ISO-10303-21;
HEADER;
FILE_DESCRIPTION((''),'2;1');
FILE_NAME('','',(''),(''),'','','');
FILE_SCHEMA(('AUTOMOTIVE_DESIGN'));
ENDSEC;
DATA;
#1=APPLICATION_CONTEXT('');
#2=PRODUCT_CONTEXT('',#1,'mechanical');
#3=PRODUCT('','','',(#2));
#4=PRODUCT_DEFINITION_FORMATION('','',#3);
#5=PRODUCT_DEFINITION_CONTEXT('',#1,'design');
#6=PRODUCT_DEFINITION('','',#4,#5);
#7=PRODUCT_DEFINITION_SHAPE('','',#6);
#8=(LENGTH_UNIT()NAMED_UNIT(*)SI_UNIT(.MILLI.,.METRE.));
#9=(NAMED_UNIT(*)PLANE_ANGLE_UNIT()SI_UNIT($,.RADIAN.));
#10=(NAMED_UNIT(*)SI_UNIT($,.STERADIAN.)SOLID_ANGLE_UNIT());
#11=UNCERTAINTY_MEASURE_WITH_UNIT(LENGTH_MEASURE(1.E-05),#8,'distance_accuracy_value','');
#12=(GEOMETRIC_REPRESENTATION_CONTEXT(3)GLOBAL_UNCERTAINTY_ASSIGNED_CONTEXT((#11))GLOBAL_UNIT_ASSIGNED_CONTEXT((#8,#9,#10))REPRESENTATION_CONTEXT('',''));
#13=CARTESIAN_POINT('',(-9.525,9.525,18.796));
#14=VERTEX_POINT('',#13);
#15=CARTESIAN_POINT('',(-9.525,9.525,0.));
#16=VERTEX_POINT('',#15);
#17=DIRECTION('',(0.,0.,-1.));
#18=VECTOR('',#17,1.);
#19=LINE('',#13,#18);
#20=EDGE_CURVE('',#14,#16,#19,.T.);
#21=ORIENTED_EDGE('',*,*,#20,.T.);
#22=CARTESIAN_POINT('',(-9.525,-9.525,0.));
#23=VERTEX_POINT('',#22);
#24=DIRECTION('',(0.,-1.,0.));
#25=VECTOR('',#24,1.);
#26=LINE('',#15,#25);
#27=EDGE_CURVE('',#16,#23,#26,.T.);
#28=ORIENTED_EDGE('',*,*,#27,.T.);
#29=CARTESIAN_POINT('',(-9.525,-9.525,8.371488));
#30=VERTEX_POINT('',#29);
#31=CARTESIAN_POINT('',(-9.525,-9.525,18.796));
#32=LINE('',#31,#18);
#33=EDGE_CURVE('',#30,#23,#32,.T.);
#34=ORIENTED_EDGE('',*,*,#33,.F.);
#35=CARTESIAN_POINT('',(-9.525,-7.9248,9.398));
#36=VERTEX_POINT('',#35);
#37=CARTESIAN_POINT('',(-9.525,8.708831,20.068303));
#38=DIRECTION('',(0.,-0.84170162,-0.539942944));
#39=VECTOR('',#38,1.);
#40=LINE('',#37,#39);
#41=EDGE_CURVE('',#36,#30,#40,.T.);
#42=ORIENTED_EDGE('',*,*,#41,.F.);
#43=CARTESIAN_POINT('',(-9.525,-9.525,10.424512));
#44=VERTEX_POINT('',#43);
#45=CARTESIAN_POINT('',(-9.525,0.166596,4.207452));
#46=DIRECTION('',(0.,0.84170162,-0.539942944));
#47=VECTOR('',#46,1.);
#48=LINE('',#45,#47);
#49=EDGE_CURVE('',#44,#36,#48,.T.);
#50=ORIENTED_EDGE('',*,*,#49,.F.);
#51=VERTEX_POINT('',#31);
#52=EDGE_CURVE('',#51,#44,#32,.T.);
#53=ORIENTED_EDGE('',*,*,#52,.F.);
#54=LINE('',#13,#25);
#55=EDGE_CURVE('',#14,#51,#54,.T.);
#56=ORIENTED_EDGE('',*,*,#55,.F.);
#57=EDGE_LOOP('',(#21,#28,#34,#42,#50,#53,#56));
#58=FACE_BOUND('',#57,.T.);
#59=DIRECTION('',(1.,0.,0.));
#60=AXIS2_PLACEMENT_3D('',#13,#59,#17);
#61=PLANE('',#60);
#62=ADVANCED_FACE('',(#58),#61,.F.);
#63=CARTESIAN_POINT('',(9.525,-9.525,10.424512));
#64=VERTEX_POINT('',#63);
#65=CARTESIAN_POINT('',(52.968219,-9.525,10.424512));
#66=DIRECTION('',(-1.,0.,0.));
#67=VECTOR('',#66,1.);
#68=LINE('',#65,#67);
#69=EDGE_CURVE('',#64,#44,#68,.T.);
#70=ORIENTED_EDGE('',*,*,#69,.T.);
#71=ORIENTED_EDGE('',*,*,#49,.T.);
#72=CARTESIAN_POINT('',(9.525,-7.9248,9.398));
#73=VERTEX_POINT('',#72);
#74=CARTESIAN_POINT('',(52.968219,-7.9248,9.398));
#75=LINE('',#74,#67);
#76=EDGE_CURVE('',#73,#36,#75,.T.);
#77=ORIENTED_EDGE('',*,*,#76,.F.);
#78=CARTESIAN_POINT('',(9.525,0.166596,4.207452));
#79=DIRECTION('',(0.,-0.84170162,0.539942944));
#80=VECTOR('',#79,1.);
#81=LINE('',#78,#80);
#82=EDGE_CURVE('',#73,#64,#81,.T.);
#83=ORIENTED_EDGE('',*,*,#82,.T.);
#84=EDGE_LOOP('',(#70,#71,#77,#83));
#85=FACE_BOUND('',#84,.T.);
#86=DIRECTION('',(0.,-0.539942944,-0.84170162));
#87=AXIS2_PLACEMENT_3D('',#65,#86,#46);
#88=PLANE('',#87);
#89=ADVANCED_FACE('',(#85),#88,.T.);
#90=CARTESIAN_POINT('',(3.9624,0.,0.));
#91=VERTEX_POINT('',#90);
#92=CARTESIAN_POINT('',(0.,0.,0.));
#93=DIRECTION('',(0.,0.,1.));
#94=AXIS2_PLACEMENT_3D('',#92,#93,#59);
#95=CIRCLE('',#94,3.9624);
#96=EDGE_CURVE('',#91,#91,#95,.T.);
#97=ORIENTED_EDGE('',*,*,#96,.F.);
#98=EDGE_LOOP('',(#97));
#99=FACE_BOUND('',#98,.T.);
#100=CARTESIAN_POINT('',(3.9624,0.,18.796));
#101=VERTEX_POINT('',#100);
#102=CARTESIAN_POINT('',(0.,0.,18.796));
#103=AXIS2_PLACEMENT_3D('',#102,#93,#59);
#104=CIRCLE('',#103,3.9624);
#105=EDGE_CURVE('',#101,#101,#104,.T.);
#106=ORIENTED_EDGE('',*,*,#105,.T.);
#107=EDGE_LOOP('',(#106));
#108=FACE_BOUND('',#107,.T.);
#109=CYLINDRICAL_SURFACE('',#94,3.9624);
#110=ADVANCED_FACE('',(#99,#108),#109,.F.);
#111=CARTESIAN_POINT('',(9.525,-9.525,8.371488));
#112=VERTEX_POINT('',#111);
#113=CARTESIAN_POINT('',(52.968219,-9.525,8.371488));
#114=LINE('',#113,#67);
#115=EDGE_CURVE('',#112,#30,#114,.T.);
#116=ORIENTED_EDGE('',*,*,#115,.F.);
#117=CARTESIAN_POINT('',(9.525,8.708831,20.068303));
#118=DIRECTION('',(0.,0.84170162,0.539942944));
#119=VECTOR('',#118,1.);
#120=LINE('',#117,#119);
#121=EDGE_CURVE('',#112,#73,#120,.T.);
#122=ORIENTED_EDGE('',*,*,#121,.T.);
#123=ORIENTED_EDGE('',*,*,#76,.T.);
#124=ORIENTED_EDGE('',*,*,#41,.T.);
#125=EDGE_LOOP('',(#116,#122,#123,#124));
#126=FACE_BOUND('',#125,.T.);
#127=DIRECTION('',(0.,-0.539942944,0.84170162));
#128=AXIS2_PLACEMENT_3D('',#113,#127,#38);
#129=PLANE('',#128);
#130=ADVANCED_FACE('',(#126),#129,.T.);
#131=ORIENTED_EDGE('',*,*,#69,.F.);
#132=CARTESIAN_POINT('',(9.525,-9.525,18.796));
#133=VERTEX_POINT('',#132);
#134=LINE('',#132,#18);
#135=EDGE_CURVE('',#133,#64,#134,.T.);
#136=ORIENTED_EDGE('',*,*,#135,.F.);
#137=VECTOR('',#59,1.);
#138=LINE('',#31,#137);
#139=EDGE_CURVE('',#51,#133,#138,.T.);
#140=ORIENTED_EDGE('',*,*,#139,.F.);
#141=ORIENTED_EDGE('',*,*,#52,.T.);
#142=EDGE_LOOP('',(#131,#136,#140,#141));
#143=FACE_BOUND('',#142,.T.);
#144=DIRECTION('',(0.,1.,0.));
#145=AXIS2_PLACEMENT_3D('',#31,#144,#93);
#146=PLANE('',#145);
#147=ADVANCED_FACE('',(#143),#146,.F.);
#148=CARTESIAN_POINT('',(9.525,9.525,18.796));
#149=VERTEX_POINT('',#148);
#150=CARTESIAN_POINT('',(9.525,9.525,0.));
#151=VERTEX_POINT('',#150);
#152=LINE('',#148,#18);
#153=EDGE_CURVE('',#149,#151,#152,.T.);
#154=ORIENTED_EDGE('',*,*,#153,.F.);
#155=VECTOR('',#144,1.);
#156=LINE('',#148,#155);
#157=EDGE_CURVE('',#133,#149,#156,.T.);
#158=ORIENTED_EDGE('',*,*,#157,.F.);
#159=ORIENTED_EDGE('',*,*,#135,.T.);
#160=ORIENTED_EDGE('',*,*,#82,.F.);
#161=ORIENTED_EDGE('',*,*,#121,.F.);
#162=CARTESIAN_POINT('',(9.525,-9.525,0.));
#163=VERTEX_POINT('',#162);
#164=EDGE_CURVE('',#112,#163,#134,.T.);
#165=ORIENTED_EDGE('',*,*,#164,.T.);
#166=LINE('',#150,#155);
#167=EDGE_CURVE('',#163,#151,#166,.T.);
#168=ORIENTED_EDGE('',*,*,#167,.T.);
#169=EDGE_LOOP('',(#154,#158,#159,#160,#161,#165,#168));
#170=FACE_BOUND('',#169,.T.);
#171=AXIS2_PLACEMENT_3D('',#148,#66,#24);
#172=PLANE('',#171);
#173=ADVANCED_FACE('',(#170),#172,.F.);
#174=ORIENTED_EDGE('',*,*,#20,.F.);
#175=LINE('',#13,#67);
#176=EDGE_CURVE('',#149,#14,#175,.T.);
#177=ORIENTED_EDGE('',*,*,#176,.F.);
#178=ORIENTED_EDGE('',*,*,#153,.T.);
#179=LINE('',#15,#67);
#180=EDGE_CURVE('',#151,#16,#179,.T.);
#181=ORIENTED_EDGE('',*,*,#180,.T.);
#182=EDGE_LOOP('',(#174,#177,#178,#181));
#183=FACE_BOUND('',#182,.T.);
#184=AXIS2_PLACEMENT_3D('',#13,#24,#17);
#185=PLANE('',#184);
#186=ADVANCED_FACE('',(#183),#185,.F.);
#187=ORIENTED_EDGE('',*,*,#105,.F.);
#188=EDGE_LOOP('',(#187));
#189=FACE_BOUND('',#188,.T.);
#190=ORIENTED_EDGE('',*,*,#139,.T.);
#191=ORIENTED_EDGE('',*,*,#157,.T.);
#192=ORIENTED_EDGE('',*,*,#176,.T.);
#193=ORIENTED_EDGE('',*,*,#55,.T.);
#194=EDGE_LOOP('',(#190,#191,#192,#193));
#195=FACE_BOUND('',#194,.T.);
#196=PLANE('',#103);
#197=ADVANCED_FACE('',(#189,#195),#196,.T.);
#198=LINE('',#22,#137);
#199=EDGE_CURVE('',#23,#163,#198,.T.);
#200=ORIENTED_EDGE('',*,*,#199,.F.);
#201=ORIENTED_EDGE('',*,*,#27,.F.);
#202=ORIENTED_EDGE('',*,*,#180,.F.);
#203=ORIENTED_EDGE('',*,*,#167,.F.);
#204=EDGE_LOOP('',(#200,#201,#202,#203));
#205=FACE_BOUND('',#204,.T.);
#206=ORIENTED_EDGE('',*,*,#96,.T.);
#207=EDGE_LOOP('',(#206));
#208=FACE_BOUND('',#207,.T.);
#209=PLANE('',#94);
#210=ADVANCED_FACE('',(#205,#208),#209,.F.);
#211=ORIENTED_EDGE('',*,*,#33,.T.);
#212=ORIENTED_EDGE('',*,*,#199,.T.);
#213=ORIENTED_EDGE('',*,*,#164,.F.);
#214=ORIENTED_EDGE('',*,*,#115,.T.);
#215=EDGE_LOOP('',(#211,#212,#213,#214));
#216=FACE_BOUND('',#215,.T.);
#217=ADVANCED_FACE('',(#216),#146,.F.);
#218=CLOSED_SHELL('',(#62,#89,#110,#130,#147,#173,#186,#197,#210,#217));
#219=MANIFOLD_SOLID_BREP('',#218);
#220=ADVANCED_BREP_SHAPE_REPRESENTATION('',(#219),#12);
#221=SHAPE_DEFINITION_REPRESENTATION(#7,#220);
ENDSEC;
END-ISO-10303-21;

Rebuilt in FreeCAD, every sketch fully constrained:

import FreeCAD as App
import Part
import Sketcher

V = App.Vector
Q = App.Units.Quantity

doc = App.newDocument("Part")
body = doc.addObject("PartDesign::Body", "Body")

sketch1 = body.newObject("Sketcher::SketchObject", "Sketch")
sketch1.AttachmentSupport = (doc.getObject("XY_Plane"), [""])
sketch1.MapMode = "FlatFace"
sketch1.addGeometry([
    Part.LineSegment(V(-10, 10, 0), V(-10, -10, 0)),
    Part.LineSegment(V(-10, -10, 0), V(10, -10, 0)),
    Part.LineSegment(V(10, -10, 0), V(10, 10, 0)),
    Part.LineSegment(V(10, 10, 0), V(-10, 10, 0)),
], False)
sketch1.addConstraint([
    Sketcher.Constraint("Coincident", 0, 2, 1, 1),
    Sketcher.Constraint("Coincident", 1, 2, 2, 1),
    Sketcher.Constraint("Coincident", 2, 2, 3, 1),
    Sketcher.Constraint("Coincident", 3, 2, 0, 1),
    Sketcher.Constraint("Vertical", 0),
    Sketcher.Constraint("Horizontal", 1),
    Sketcher.Constraint("Vertical", 2),
    Sketcher.Constraint("Horizontal", 3),
    Sketcher.Constraint("Symmetric", 0, 2, 2, 2, -1, 1),
    Sketcher.Constraint("Equal", 3, 0),
    Sketcher.Constraint("DistanceX", 1, 1, 1, 2, Q("0.75 in")),
])
pad1 = body.newObject("PartDesign::Pad", "Pad")
pad1.Profile = sketch1
pad1.Length = Q("0.74 in")

sketch2 = body.newObject("Sketcher::SketchObject", "Sketch001")
sketch2.AttachmentSupport = (doc.getObject("XY_Plane"), [""])
sketch2.MapMode = "FlatFace"
sketch2.AttachmentOffset = App.Placement(V(0, 0, 0.74 * 25.4), App.Rotation())
sketch2.addGeometry(Part.Circle(V(0, 0, 0), V(0, 0, 1), 4), False)
sketch2.addConstraint([
    Sketcher.Constraint("Coincident", 0, 3, -1, 1),
    Sketcher.Constraint("Diameter", 0, Q("0.312 in")),
])
pocket1 = body.newObject("PartDesign::Pocket", "Pocket")
pocket1.Profile = sketch2
pocket1.Type = "ThroughAll"

sketch3 = body.newObject("Sketcher::SketchObject", "Sketch002")
sketch3.AttachmentSupport = (doc.getObject("YZ_Plane"), [""])
sketch3.MapMode = "FlatFace"
sketch3.addGeometry([
    Part.LineSegment(V(-9.5, 10.4, 0), V(-54.5, 39.3, 0)),
    Part.LineSegment(V(-54.5, 39.3, 0), V(-161.4, 39.3, 0)),
    Part.LineSegment(V(-161.4, 39.3, 0), V(-161.4, -20.5, 0)),
    Part.LineSegment(V(-161.4, -20.5, 0), V(-54.5, -20.5, 0)),
    Part.LineSegment(V(-54.5, -20.5, 0), V(-9.5, 8.4, 0)),
    Part.LineSegment(V(-9.5, 8.4, 0), V(-7.9, 9.4, 0)),
    Part.LineSegment(V(-7.9, 9.4, 0), V(-9.5, 10.4, 0)),
], False)
sketch3.addConstraint([
    Sketcher.Constraint("Coincident", 0, 2, 1, 1),
    Sketcher.Constraint("Coincident", 1, 2, 2, 1),
    Sketcher.Constraint("Coincident", 2, 2, 3, 1),
    Sketcher.Constraint("Coincident", 3, 2, 4, 1),
    Sketcher.Constraint("Coincident", 4, 2, 5, 1),
    Sketcher.Constraint("Coincident", 5, 2, 6, 1),
    Sketcher.Constraint("Coincident", 6, 2, 0, 1),
    Sketcher.Constraint("Horizontal", 1),
    Sketcher.Constraint("Vertical", 2),
    Sketcher.Constraint("Horizontal", 3),
    Sketcher.Constraint("Parallel", 4, 5),
    Sketcher.Constraint("Parallel", 0, 6),
    Sketcher.Constraint("Vertical", 0, 2, 3, 2),
    Sketcher.Constraint("Vertical", 4, 2, 6, 2),
    Sketcher.Constraint("Equal", 0, 4),
    Sketcher.Constraint("DistanceY", -1, 1, 5, 2, Q("0.37 in")),
    Sketcher.Constraint("DistanceX", 4, 2, -1, 1, Q("0.375 in")),
    Sketcher.Constraint("DistanceX", 5, 2, -1, 1, Q("0.312 in")),
    Sketcher.Constraint("DistanceX", 1, 2, 1, 1, 106.862922),
    Sketcher.Constraint("Distance", 0, 53.431461),
    Sketcher.Constraint("Distance", 5, 1.901149),
])
pocket2 = body.newObject("PartDesign::Pocket", "Pocket001")
pocket2.Profile = sketch3
pocket2.Type = "ThroughAll"
pocket2.Midplane = True

doc.recompute()
